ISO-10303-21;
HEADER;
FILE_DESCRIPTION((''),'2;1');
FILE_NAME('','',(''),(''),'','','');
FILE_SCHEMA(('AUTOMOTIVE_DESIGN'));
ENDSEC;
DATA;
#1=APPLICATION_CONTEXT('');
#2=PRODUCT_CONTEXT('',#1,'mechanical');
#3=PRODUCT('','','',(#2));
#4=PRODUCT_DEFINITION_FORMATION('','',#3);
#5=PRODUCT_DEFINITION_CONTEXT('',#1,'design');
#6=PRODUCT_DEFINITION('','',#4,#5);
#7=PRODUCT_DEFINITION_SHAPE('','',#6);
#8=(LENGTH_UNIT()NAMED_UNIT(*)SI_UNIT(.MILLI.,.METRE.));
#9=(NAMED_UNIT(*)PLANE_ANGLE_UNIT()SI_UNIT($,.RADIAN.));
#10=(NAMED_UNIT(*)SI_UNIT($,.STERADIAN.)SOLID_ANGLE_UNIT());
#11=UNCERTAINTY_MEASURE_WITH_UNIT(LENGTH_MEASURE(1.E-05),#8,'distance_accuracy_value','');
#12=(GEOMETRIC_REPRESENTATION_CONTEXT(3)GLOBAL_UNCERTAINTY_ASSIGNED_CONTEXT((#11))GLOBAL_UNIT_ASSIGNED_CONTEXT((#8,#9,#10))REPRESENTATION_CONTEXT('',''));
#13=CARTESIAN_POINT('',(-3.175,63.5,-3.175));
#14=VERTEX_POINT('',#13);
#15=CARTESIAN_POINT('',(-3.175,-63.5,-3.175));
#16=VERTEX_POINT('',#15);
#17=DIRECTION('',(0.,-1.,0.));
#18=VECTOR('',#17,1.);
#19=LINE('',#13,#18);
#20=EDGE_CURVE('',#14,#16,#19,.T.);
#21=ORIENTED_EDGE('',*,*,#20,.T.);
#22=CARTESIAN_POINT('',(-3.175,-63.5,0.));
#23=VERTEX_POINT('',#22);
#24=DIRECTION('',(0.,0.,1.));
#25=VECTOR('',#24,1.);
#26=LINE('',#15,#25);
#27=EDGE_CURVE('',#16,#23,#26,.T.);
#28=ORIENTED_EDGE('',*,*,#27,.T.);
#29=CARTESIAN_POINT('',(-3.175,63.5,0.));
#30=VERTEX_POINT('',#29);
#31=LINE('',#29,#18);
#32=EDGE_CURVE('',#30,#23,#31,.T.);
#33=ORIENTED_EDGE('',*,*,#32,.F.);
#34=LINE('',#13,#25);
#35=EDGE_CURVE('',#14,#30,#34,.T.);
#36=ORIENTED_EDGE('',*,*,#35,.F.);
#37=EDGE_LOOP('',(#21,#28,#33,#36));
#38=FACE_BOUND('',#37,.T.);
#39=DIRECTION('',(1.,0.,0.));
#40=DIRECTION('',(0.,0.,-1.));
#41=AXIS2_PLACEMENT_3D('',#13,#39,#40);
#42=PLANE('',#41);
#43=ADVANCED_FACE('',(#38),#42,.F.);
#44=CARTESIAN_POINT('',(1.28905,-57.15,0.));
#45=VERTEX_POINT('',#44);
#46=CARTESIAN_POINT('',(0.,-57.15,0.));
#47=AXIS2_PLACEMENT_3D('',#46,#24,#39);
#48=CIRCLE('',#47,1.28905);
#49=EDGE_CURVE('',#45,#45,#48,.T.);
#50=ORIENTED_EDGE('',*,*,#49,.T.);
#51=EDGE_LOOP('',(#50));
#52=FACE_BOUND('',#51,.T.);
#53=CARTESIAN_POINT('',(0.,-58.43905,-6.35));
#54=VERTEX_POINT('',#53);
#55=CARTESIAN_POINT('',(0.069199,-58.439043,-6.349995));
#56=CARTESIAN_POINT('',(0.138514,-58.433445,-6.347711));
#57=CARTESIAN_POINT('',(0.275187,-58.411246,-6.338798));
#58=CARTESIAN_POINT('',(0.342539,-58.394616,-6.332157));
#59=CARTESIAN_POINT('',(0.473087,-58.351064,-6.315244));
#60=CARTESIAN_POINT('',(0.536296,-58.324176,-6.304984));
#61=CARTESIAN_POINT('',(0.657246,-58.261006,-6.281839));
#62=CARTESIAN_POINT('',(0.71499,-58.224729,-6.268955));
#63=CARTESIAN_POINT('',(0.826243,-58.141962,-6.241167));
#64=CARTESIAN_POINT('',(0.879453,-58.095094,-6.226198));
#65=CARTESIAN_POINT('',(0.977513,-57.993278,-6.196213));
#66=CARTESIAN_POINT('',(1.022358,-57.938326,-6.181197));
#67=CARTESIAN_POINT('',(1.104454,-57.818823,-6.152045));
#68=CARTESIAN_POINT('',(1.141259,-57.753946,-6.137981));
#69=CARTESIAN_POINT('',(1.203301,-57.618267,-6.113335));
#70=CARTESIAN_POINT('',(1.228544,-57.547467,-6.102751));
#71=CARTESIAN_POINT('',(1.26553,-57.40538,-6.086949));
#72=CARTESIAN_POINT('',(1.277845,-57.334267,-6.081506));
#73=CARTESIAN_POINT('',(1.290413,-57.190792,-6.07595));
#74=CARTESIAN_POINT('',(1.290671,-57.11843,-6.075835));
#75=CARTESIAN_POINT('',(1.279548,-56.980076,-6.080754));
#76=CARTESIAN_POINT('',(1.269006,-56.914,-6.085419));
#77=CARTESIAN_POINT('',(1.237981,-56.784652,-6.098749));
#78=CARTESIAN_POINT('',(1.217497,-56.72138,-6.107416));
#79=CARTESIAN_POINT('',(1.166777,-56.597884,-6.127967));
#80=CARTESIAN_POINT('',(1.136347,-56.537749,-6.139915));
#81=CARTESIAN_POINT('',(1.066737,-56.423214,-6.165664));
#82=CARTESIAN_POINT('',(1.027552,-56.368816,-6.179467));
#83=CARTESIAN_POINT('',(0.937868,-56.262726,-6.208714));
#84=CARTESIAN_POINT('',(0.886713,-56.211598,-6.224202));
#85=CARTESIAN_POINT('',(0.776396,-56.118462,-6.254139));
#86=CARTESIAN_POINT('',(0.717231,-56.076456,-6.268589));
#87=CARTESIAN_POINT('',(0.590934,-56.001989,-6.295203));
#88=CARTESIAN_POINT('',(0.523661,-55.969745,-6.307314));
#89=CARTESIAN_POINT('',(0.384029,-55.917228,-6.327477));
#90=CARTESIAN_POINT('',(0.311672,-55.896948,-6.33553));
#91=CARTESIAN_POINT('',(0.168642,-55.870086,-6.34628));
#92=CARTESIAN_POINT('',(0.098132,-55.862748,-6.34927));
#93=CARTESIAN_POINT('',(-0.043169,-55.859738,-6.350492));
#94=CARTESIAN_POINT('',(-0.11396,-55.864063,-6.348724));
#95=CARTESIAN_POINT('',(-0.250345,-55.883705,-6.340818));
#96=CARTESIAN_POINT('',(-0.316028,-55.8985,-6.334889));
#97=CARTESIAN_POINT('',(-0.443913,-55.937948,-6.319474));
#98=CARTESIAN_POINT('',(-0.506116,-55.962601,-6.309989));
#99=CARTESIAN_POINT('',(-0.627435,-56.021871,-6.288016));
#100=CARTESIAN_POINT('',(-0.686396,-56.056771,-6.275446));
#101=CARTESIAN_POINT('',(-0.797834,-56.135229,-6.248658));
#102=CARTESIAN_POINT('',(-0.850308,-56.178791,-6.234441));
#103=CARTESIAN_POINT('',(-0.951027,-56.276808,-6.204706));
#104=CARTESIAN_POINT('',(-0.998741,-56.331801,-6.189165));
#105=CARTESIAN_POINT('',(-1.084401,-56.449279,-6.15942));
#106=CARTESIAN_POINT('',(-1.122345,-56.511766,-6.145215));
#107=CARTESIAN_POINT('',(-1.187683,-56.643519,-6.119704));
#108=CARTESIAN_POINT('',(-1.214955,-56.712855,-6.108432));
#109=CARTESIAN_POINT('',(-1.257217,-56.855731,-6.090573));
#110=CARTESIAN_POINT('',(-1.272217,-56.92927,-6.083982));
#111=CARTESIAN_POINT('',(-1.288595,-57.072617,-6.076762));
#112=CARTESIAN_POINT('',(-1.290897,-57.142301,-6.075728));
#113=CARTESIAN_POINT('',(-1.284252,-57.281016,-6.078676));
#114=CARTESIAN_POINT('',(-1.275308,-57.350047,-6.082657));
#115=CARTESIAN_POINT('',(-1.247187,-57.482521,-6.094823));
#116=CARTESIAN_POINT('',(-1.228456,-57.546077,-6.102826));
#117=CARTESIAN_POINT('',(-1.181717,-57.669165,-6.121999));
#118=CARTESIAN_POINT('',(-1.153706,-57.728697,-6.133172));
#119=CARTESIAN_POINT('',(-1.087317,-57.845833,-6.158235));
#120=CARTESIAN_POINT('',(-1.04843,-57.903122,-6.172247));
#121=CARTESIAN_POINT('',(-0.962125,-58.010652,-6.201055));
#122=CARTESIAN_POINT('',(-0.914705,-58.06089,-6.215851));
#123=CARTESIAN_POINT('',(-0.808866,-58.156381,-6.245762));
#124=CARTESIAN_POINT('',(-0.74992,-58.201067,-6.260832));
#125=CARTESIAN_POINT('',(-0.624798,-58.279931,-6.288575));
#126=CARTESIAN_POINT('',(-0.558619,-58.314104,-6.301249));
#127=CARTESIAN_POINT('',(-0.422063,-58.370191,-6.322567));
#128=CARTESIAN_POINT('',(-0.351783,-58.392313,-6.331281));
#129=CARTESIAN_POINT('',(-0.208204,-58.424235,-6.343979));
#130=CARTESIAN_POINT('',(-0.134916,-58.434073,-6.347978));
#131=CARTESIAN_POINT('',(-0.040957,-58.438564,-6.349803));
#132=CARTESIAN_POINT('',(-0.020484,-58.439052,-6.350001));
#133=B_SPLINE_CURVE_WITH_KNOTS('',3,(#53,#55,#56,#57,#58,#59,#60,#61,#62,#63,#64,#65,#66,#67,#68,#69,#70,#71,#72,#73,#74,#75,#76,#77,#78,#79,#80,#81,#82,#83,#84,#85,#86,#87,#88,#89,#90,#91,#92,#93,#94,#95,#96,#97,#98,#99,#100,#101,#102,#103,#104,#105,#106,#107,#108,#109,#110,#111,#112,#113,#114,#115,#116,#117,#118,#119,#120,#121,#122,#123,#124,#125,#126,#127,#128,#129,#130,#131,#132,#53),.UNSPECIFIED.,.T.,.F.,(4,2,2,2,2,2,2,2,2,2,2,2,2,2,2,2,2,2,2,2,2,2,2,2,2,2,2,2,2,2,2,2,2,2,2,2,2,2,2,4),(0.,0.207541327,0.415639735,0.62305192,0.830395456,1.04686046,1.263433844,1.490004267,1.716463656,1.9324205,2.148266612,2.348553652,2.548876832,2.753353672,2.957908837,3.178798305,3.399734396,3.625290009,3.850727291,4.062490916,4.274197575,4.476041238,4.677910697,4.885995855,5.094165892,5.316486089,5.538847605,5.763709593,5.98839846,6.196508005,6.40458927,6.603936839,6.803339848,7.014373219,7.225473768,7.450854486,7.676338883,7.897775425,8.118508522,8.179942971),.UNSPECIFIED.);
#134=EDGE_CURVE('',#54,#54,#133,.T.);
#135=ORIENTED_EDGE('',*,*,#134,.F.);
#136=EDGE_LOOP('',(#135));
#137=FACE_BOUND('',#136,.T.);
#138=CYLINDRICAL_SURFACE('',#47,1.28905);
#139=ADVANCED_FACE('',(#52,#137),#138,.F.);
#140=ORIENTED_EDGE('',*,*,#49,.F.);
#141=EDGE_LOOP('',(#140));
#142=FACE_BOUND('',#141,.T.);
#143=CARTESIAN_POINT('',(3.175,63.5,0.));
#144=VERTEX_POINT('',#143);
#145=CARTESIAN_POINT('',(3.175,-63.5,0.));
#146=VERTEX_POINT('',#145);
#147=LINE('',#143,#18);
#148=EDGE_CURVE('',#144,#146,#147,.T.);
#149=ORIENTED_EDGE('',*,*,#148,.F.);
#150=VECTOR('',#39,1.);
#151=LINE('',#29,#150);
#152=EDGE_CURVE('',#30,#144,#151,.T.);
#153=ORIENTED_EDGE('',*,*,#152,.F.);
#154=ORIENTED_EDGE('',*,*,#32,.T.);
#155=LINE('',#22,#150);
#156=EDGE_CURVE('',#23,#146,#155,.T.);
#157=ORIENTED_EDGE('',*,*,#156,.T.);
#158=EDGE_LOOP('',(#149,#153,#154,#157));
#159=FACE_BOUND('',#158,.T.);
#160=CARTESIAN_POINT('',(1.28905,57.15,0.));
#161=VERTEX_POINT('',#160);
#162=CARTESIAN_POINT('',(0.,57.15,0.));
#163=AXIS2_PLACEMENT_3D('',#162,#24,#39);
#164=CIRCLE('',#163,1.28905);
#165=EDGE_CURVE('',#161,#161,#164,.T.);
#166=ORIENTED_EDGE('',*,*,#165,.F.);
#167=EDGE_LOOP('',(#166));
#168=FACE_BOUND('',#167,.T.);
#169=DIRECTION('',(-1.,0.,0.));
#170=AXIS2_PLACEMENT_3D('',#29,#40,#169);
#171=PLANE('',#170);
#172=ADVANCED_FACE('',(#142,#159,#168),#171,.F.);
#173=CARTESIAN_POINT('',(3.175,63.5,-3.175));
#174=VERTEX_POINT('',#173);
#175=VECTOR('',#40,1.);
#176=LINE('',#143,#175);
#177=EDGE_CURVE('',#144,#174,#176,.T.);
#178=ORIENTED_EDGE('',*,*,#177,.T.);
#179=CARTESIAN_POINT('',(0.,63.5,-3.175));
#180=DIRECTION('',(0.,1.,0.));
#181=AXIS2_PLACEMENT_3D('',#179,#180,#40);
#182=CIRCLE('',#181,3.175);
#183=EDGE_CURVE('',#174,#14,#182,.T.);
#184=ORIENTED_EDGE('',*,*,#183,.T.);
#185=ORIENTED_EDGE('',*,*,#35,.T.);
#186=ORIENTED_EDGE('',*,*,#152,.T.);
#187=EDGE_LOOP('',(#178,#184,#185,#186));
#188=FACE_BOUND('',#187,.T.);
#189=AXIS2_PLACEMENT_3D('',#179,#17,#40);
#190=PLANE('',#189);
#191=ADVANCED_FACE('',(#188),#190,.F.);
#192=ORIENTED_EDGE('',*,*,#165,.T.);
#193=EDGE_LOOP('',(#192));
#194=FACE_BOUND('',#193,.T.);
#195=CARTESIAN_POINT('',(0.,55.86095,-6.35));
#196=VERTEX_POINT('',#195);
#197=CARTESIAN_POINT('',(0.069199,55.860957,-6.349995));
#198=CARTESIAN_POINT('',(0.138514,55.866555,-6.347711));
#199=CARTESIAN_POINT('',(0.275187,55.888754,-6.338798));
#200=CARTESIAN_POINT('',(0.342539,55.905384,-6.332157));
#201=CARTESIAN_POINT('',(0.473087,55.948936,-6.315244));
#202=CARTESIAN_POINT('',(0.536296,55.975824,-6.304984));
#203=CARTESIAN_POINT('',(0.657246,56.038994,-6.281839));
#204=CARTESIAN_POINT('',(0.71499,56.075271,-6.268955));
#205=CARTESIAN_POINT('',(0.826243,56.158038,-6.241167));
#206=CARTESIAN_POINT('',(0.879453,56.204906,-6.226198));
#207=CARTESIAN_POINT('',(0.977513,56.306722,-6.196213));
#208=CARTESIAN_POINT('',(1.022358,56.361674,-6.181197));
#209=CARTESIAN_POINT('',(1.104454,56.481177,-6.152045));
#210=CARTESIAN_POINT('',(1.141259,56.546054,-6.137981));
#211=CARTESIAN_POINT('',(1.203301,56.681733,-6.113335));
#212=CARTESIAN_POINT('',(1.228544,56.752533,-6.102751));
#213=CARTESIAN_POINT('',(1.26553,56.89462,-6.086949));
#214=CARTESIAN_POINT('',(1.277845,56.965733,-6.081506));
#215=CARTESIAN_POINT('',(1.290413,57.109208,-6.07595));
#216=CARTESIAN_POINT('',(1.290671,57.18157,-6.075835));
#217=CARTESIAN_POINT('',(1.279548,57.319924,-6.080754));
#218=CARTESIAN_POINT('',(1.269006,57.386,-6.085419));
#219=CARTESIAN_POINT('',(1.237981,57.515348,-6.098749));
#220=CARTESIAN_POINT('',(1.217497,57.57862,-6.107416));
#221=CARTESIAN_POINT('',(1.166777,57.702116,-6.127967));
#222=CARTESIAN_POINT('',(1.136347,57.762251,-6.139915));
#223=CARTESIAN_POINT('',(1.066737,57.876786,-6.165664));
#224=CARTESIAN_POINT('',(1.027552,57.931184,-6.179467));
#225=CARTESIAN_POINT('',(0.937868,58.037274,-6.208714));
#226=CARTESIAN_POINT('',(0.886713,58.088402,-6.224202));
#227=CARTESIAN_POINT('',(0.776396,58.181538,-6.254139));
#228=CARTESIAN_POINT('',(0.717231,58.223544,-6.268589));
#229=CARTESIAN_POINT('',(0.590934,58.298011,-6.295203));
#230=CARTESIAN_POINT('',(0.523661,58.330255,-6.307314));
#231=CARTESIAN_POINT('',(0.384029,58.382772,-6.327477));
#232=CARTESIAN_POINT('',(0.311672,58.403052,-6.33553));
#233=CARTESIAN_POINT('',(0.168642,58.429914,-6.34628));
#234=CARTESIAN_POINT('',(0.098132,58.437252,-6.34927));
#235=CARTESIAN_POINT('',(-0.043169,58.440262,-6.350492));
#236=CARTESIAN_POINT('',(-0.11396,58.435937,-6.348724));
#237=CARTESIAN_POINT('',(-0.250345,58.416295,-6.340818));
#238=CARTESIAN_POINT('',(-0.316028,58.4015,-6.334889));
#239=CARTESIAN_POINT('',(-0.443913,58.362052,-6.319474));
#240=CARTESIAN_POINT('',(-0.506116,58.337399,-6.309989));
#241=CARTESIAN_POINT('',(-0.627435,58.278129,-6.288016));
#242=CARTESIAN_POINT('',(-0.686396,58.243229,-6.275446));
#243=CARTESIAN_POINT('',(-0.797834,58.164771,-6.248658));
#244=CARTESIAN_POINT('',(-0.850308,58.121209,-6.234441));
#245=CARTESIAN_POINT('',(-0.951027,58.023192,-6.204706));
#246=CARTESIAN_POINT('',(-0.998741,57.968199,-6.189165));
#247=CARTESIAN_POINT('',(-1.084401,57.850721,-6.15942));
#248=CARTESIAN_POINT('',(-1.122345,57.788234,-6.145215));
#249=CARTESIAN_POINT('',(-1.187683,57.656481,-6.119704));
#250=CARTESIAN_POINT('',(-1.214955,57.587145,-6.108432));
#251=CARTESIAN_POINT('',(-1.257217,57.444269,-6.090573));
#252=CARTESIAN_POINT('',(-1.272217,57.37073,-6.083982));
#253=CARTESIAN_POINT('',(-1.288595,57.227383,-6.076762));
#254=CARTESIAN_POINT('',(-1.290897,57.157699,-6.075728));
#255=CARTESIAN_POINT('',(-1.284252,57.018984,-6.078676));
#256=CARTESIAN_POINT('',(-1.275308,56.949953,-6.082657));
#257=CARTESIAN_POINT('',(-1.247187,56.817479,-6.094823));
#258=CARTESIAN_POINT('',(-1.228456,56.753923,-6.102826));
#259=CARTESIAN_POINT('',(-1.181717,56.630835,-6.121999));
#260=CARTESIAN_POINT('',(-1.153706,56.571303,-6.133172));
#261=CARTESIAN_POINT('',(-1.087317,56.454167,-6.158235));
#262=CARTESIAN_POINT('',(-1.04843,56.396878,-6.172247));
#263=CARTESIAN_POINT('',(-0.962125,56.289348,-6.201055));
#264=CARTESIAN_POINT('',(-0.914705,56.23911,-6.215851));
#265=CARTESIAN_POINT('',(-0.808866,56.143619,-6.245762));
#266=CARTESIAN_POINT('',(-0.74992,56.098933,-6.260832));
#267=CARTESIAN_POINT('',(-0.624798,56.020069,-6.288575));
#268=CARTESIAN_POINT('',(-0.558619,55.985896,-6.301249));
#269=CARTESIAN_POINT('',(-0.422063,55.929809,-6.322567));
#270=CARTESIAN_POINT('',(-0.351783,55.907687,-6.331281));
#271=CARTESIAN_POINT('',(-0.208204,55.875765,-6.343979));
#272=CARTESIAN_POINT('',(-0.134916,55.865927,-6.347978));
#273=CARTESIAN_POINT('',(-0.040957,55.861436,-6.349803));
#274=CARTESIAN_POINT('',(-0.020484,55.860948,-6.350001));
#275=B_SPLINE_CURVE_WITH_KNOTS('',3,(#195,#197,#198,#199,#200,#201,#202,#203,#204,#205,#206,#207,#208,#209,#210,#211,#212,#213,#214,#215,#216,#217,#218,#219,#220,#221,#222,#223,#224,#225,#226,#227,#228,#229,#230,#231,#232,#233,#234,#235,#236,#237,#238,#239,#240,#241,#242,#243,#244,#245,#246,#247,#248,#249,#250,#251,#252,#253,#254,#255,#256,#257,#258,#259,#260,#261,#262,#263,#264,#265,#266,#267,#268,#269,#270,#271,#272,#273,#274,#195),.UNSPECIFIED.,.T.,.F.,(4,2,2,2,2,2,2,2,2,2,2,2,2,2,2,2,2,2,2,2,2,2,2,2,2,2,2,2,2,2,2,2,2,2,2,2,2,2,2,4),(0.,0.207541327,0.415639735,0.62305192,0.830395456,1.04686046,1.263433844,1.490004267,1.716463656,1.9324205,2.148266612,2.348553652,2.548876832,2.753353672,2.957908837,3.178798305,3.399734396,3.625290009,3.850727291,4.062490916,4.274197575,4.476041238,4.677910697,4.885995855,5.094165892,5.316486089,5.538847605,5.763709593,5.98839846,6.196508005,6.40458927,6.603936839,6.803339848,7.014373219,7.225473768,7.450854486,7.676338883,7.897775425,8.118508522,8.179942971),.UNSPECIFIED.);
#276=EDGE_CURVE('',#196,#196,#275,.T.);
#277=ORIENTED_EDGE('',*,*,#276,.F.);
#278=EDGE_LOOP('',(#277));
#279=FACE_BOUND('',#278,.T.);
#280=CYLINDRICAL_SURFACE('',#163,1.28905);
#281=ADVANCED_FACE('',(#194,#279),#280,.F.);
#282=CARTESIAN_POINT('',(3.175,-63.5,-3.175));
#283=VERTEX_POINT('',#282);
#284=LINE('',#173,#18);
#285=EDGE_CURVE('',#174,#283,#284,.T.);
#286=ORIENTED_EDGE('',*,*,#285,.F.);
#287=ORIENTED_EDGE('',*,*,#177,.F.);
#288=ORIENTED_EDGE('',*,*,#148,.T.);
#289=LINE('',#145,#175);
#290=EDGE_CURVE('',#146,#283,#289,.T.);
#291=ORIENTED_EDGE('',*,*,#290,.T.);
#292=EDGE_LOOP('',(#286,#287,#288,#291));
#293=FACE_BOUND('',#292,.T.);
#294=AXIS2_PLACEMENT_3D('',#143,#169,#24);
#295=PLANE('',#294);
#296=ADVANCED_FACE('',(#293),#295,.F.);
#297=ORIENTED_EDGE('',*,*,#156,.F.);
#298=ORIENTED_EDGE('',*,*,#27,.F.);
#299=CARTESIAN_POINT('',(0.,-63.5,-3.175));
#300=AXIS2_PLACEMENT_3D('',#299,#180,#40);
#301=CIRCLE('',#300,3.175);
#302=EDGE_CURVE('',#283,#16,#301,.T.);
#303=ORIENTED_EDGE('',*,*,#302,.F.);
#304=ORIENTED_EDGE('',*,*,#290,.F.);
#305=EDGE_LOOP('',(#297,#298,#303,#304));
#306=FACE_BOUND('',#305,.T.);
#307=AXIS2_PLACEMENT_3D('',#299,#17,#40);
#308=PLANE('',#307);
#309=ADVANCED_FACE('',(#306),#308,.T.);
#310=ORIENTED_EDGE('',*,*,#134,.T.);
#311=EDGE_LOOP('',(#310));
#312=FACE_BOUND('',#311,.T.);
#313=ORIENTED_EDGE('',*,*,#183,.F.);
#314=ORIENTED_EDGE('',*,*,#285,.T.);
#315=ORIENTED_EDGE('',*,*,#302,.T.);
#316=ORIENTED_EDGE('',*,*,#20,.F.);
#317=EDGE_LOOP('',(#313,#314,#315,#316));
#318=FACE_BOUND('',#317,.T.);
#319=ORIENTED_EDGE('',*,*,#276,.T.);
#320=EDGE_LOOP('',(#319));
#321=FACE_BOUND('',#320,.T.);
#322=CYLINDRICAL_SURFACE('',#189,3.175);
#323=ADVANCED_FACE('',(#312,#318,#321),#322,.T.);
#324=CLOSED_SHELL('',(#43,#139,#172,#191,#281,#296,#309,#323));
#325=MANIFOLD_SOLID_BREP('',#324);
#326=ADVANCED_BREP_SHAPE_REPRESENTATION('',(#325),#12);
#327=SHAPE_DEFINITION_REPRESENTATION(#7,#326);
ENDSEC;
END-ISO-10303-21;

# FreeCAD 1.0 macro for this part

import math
import FreeCAD as App
import Part
import Sketcher
Q = App.Units.Quantity

doc = App.newDocument("Part")
body = doc.addObject("PartDesign::Body", "Body")

sketch1 = body.newObject("Sketcher::SketchObject", "Sketch")
sketch1.AttachmentSupport = (doc.getObject("XZ_Plane"), [""])
sketch1.MapMode = "FlatFace"
sketch1.addGeometry(Part.LineSegment(App.Vector(-3.2, -3.2, 0), App.Vector(-3.2, 0, 0)), False)
sketch1.addGeometry(Part.LineSegment(App.Vector(-3.2, 0, 0), App.Vector(3.2, 0, 0)), False)
sketch1.addGeometry(Part.LineSegment(App.Vector(3.2, 0, 0), App.Vector(3.2, -3.2, 0)), False)
sketch1.addGeometry(Part.ArcOfCircle(Part.Circle(App.Vector(0, -3.2, 0), App.Vector(0, 0, 1), 3.2), math.radians(180), math.radians(360)), False)
sketch1.addConstraint(Sketcher.Constraint("Coincident", 0, 2, 1, 1))
sketch1.addConstraint(Sketcher.Constraint("Coincident", 1, 2, 2, 1))
sketch1.addConstraint(Sketcher.Constraint("Tangent", 2, 2, 3, 2))
sketch1.addConstraint(Sketcher.Constraint("Tangent", 3, 1, 0, 1))
sketch1.addConstraint(Sketcher.Constraint("Vertical", 0))
sketch1.addConstraint(Sketcher.Constraint("Horizontal", 1))
sketch1.addConstraint(Sketcher.Constraint("Vertical", 2))
sketch1.addConstraint(Sketcher.Constraint("Symmetric", 0, 2, 1, 2, -1, 1))
sketch1.addConstraint(Sketcher.Constraint("Radius", 3, Q("0.125 in")))
sketch1.addConstraint(Sketcher.Constraint("DistanceY", 0, 1, 0, 2, Q("0.125 in")))
pad1 = body.newObject("PartDesign::Pad", "Pad")
pad1.Profile = sketch1
pad1.Length = Q("5 in")
pad1.Midplane = True

sketch2 = body.newObject("Sketcher::SketchObject", "Sketch001")
sketch2.AttachmentSupport = (doc.getObject("XY_Plane"), [""])
sketch2.MapMode = "FlatFace"
sketch2.addGeometry(Part.Circle(App.Vector(0, -57.1, 0), App.Vector(0, 0, 1), 1.3), False)
sketch2.addConstraint(Sketcher.Constraint("PointOnObject", 0, 3, -2))
sketch2.addConstraint(Sketcher.Constraint("Diameter", 0, Q("0.1015 in")))
sketch2.addConstraint(Sketcher.Constraint("DistanceY", 0, 3, -1, 1, Q("2.25 in")))
doc.recompute()
hole = body.newObject("PartDesign::Hole", "Hole")
hole.Profile = sketch2
hole.ThreadType = "None"
hole.Diameter = Q("0.1015 in")
hole.DepthType = "ThroughAll"
doc.recompute()

mirrored = body.newObject("PartDesign::Mirrored", "Mirrored")
mirrored.Originals = [hole]
mirrored.MirrorPlane = (doc.getObject("XZ_Plane"), [""])
body.Tip = mirrored

doc.recompute()
